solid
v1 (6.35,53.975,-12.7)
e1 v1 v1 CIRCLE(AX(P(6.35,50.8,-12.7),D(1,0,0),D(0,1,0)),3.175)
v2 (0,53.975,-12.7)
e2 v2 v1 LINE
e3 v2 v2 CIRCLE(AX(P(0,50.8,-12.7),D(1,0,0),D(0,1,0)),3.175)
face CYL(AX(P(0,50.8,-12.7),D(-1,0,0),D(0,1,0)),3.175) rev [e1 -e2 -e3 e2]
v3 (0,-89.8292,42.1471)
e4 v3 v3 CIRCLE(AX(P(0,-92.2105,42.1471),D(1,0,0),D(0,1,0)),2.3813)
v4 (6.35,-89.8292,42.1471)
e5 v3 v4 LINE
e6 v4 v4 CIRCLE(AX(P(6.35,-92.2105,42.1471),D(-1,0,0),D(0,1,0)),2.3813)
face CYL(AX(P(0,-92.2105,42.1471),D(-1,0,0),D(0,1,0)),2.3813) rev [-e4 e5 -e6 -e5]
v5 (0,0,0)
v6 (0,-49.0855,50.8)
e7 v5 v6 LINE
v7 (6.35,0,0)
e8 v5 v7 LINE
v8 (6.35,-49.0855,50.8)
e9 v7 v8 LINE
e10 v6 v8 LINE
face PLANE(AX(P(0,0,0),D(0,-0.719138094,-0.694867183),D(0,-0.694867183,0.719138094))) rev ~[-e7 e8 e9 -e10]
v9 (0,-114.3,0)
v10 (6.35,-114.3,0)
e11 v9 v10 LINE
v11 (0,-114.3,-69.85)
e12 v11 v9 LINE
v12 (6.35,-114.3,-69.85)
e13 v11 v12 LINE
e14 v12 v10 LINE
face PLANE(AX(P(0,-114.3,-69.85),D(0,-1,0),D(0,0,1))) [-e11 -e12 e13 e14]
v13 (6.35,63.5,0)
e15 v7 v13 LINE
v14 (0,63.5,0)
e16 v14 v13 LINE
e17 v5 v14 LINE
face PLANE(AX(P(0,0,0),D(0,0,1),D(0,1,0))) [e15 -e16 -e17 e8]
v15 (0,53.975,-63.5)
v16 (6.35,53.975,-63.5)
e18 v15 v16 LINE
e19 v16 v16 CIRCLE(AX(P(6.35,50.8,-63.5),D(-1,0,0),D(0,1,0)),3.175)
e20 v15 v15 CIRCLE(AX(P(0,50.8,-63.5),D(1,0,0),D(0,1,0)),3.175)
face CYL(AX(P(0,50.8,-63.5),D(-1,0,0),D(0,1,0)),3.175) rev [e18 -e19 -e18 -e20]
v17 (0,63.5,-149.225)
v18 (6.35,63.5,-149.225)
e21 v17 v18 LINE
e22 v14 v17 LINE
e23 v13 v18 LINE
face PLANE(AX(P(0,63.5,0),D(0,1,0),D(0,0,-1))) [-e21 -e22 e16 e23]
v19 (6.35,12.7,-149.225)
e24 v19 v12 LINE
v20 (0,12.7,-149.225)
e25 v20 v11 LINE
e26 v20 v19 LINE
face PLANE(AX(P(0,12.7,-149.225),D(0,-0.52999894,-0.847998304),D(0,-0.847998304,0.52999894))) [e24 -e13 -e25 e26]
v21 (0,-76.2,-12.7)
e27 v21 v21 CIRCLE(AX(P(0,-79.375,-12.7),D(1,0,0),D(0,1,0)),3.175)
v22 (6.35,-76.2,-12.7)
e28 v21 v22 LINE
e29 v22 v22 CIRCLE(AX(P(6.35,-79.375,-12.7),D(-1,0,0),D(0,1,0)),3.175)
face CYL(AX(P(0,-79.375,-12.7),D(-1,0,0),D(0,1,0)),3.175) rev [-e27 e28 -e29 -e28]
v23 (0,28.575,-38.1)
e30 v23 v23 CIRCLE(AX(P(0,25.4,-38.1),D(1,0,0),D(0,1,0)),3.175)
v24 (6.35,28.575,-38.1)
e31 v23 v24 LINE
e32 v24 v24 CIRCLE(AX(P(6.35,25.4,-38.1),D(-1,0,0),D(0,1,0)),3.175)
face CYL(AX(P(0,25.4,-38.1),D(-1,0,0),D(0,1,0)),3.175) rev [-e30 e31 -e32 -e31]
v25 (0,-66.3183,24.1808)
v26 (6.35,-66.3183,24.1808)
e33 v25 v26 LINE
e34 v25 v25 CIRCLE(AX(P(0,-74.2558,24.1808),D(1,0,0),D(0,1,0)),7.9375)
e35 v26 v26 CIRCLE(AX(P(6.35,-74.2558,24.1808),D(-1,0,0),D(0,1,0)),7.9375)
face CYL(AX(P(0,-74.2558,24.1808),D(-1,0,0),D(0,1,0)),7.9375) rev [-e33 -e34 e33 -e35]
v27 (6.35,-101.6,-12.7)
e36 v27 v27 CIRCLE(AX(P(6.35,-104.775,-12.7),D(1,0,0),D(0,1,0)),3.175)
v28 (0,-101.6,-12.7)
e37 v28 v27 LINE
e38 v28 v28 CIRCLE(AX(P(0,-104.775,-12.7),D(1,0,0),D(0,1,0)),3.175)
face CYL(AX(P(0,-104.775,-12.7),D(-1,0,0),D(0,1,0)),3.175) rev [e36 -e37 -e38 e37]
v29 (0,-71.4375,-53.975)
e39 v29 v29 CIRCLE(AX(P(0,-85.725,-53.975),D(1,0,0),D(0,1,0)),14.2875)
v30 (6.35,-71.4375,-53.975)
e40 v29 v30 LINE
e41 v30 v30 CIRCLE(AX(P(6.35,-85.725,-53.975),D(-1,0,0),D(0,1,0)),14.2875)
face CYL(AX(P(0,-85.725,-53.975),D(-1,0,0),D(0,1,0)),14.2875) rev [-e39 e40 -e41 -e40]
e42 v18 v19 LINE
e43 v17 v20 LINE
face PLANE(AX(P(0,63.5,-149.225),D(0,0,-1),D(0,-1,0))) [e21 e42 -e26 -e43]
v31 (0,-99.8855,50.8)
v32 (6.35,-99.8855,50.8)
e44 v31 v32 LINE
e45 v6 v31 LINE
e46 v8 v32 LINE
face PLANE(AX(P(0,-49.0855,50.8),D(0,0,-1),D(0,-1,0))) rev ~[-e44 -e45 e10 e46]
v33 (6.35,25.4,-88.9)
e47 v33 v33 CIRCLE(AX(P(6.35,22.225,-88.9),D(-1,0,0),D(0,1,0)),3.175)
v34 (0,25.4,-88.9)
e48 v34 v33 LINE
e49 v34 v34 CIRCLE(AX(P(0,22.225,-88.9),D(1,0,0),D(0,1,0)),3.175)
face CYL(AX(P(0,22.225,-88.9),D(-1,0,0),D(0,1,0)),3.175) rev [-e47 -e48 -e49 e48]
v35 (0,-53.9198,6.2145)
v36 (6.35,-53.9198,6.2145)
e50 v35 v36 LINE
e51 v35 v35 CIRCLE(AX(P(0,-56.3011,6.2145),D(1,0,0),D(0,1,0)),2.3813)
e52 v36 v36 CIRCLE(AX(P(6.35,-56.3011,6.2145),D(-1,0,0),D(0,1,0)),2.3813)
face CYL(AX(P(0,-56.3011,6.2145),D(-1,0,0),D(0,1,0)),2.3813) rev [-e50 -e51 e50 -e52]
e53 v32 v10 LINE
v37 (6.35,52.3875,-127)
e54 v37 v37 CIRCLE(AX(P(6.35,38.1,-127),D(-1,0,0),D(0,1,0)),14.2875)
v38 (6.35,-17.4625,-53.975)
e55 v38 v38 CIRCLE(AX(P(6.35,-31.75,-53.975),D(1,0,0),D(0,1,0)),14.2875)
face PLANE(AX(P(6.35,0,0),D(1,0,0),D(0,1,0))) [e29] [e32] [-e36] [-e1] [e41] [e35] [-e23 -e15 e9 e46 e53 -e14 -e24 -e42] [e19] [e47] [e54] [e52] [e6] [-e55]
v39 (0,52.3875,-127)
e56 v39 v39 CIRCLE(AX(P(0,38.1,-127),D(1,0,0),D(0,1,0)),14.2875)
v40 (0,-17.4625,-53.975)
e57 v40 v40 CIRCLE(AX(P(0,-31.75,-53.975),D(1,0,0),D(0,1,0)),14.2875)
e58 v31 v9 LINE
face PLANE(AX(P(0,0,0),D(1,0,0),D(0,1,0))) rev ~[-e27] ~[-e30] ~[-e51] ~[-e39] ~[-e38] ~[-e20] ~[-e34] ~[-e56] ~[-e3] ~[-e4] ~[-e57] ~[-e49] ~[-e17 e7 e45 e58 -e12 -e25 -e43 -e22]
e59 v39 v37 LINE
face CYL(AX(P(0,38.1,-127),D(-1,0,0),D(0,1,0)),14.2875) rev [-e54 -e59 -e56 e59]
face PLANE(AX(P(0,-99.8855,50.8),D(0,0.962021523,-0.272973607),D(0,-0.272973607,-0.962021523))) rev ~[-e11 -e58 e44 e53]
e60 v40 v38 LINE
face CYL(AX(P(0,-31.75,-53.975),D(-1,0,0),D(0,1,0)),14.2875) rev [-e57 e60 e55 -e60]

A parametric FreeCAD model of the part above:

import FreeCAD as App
import Part
import Sketcher
from FreeCAD import Vector
Q = App.Units.Quantity


def add_polygon(sketch, points):
    """Adds a closed chain of lines whose ends are joined by coincident constraints."""
    first, n = sketch.GeometryCount, len(points)
    for a, b in zip(points, points[1:] + points[:1]):
        sketch.addGeometry(Part.LineSegment(App.Vector(*a, 0), App.Vector(*b, 0)), False)
    for i in range(n):
        sketch.addConstraint(Sketcher.Constraint("Coincident", first + i, 2, first + (i + 1) % n, 1))

doc = App.newDocument("Part")
body = doc.addObject("PartDesign::Body", "Body")

# Sketch on YZ plane
sketch1 = body.newObject("Sketcher::SketchObject", "Sketch")
sketch1.AttachmentSupport = (doc.getObject("YZ_Plane"), [""])
sketch1.MapMode = "FlatFace"
add_polygon(sketch1, [(63.5, 0), (0, 0), (-49.1, 50.8), (-99.9, 50.8), (-114.3, 0), (-114.3, -69.8), (12.7, -149.2), (63.5, -149.2)])  # lines 0-7
sketch1.addGeometry(Part.Circle(Vector(-31.8, -54, 0), Vector(0, 0, 1), 14.3), False)  # 8
sketch1.addGeometry(Part.Circle(Vector(-104.8, -12.7, 0), Vector(0, 0, 1), 3.2), False)  # 9
sketch1.addGeometry(Part.Circle(Vector(50.8, -12.7, 0), Vector(0, 0, 1), 3.2), False)  # 10
sketch1.addConstraint(Sketcher.Constraint("Horizontal", 0))
sketch1.addConstraint(Sketcher.Constraint("Horizontal", 2))
sketch1.addConstraint(Sketcher.Constraint("Vertical", 4))
sketch1.addConstraint(Sketcher.Constraint("Horizontal", 6))
sketch1.addConstraint(Sketcher.Constraint("Vertical", 7))
sketch1.addConstraint(Sketcher.Constraint("Coincident", 0, 2, -1, 1))
sketch1.addConstraint(Sketcher.Constraint("Equal", 9, 10))
sketch1.addConstraint(Sketcher.Constraint("PointOnObject", 3, 2, -1))
sketch1.addConstraint(Sketcher.Constraint("Horizontal", 9, 3, 10, 3))
sketch1.addConstraint(Sketcher.Constraint("Equal", 2, 6))
sketch1.addConstraint(Sketcher.Constraint("Diameter", 9, Q("0.25 in")))
sketch1.addConstraint(Sketcher.Constraint("DistanceX", 2, 2, 2, 1, Q("2 in")))
sketch1.addConstraint(Sketcher.Constraint("Diameter", 8, Q("1.125 in")))
sketch1.addConstraint(Sketcher.Constraint("DistanceX", 0, 2, 0, 1, Q("2.5 in")))
sketch1.addConstraint(Sketcher.Constraint("DistanceX", -1, 1, 10, 3, Q("2 in")))
sketch1.addConstraint(Sketcher.Constraint("DistanceY", -1, 1, 1, 2, Q("2 in")))
sketch1.addConstraint(Sketcher.Constraint("DistanceY", 4, 2, 4, 1, Q("2.75 in")))
sketch1.addConstraint(Sketcher.Constraint("DistanceY", 9, 3, -1, 1, Q("0.5 in")))
sketch1.addConstraint(Sketcher.Constraint("DistanceX", 3, 2, -1, 1, Q("4.5 in")))
sketch1.addConstraint(Sketcher.Constraint("DistanceY", 7, 1, 7, 2, Q("5.875 in")))
sketch1.addConstraint(Sketcher.Constraint("DistanceY", 8, 3, -1, 1, Q("2.125 in")))
sketch1.addConstraint(Sketcher.Constraint("DistanceX", 3, 2, 9, 3, Q("0.375 in")))
sketch1.addConstraint(Sketcher.Constraint("DistanceX", 8, 3, -1, 1, Q("1.25 in")))
sketch1.addConstraint(Sketcher.Constraint("Distance", 1, Q("2.7811 in")))
pad1 = body.newObject("PartDesign::Pad", "Pad")
pad1.Profile = sketch1
pad1.Length = Q("0.25 in")

# Sketch on YZ plane
sketch2 = body.newObject("Sketcher::SketchObject", "Sketch001")
sketch2.AttachmentSupport = (doc.getObject("YZ_Plane"), [""])
sketch2.MapMode = "FlatFace"
sketch2.addGeometry(Part.Circle(Vector(-85.7, -54, 0), Vector(0, 0, 1), 14.3), False)
sketch2.addGeometry(Part.Circle(Vector(-56.3, 6.2, 0), Vector(0, 0, 1), 2.4), False)
sketch2.addGeometry(Part.Circle(Vector(-92.2, 42.1, 0), Vector(0, 0, 1), 2.4), False)
sketch2.addGeometry(Part.Circle(Vector(-74.3, 24.2, 0), Vector(0, 0, 1), 7.9), False)
sketch2.addGeometry(Part.Circle(Vector(38.1, -127, 0), Vector(0, 0, 1), 14.3), False)
sketch2.addGeometry(Part.Circle(Vector(22.2, -88.9, 0), Vector(0, 0, 1), 3.2), False)
sketch2.addGeometry(Part.Circle(Vector(50.8, -63.5, 0), Vector(0, 0, 1), 3.2), False)
sketch2.addGeometry(Part.Circle(Vector(25.4, -38.1, 0), Vector(0, 0, 1), 3.2), False)
sketch2.addGeometry(Part.Circle(Vector(-79.4, -12.7, 0), Vector(0, 0, 1), 3.2), False)
sketch2.addConstraint(Sketcher.Constraint("Equal", 1, 2))
sketch2.addConstraint(Sketcher.Constraint("Equal", 0, 4))
sketch2.addConstraint(Sketcher.Constraint("Equal", 5, 6))
sketch2.addConstraint(Sketcher.Constraint("Equal", 6, 7))
sketch2.addConstraint(Sketcher.Constraint("Equal", 7, 8))
sketch2.addConstraint(Sketcher.Constraint("Diameter", 5, Q("0.25 in")))
sketch2.addConstraint(Sketcher.Constraint("Diameter", 0, Q("1.125 in")))
sketch2.addConstraint(Sketcher.Constraint("Diameter", 1, Q("0.1875 in")))
sketch2.addConstraint(Sketcher.Constraint("Diameter", 3, Q("0.625 in")))
sketch2.addConstraint(Sketcher.Constraint("DistanceX", -1, 1, 6, 3, Q("2 in")))
sketch2.addConstraint(Sketcher.Constraint("DistanceX", -1, 1, 7, 3, Q("1 in")))
sketch2.addConstraint(Sketcher.Constraint("DistanceY", 5, 3, 6, 3, Q("1 in")))
sketch2.addConstraint(Sketcher.Constraint("DistanceY", 6, 3, 7, 3, Q("1 in")))
sketch2.addConstraint(Sketcher.Constraint("DistanceY", 7, 3, 8, 3, Q("1 in")))
sketch2.addConstraint(Sketcher.Constraint("DistanceX", -1, 1, 4, 3, Q("1.5 in")))
sketch2.addConstraint(Sketcher.Constraint("DistanceY", 5, 3, -1, 1, Q("3.5 in")))
sketch2.addConstraint(Sketcher.Constraint("DistanceY", 4, 3, 5, 3, Q("1.5 in")))
sketch2.addConstraint(Sketcher.Constraint("DistanceX", 0, 3, 8, 3, Q("0.25 in")))
sketch2.addConstraint(Sketcher.Constraint("DistanceY", 0, 3, -1, 1, Q("2.125 in")))
sketch2.addConstraint(Sketcher.Constraint("DistanceX", -1, 1, 5, 3, Q("0.875 in")))
sketch2.addConstraint(Sketcher.Constraint("DistanceY", -1, 1, 1, 3, Q("6.2145 mm")))
sketch2.addConstraint(Sketcher.Constraint("DistanceX", 0, 3, 5, 3, Q("4.25 in")))
sketch2.addConstraint(Sketcher.Constraint("DistanceY", -1, 1, 3, 3, Q("0.952 in")))
sketch2.addConstraint(Sketcher.Constraint("DistanceX", 1, 3, -1, 1, Q("56.301 mm")))
sketch2.addConstraint(Sketcher.Constraint("DistanceX", 2, 3, -1, 1, Q("92.2105 mm")))
sketch2.addConstraint(Sketcher.Constraint("DistanceY", -1, 1, 2, 3, Q("42.147 mm")))
sketch2.addConstraint(Sketcher.Constraint("DistanceX", 3, 3, -1, 1, Q("74.2558 mm")))
pocket1 = body.newObject("PartDesign::Pocket", "Pocket")
pocket1.Profile = sketch2
pocket1.Length = Q("1 in")
pocket1.Reversed = True

doc.recompute()
